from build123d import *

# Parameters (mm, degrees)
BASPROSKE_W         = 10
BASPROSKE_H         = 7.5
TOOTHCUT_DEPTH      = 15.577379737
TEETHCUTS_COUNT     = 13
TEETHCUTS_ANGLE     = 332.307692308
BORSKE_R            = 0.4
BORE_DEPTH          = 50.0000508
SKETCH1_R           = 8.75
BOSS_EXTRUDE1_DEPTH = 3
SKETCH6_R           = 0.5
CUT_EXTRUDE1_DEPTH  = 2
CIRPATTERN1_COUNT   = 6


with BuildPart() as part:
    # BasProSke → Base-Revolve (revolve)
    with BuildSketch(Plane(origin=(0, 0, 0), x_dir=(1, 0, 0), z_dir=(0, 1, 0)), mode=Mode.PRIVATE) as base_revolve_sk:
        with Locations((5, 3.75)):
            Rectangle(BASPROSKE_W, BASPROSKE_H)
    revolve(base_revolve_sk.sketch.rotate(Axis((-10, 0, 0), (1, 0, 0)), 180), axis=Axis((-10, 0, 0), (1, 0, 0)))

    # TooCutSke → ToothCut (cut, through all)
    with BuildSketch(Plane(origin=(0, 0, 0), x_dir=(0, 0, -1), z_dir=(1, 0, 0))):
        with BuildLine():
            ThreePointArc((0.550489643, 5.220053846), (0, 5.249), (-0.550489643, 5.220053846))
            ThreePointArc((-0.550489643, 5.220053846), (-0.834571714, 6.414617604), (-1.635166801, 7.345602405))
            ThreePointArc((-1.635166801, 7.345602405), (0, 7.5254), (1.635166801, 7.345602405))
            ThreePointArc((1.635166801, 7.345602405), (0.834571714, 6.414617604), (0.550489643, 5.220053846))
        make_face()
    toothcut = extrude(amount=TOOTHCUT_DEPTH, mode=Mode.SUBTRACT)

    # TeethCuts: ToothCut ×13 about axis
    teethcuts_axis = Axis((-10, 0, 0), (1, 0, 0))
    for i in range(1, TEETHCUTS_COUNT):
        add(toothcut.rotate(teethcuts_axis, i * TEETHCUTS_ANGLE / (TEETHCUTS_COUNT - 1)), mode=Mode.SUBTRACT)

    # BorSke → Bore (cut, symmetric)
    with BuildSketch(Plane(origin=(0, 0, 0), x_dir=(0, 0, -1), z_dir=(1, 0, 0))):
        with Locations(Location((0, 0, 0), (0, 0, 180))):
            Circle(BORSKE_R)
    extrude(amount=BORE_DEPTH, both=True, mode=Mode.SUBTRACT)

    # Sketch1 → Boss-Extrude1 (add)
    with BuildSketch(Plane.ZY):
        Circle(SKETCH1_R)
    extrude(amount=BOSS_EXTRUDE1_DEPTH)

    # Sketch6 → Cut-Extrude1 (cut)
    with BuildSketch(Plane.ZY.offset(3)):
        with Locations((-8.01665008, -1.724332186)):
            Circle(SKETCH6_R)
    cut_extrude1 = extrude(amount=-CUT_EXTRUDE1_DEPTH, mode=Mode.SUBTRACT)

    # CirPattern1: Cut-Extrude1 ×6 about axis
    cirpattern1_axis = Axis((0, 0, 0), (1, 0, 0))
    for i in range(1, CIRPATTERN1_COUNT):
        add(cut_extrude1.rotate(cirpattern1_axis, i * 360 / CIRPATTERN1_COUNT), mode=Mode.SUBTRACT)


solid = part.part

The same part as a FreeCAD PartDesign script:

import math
import FreeCAD as App
import Part
import Sketcher

V = App.Vector

doc = App.newDocument("Part")
body = doc.addObject("PartDesign::Body", "Body")

sketch1 = body.newObject("Sketcher::SketchObject", "Sketch")
sketch1.AttachmentSupport = (doc.getObject("XZ_Plane"), [""])
sketch1.MapMode = "FlatFace"
sketch1.addGeometry(Part.LineSegment(V(0, -8, 0), V(0, 0, 0)), False)
sketch1.addGeometry(Part.LineSegment(V(0, 0, 0), V(10, 0, 0)), False)
sketch1.addGeometry(Part.LineSegment(V(10, 0, 0), V(10, -8, 0)), False)
sketch1.addGeometry(Part.LineSegment(V(10, -8, 0), V(0, -8, 0)), False)
sketch1.addConstraint(Sketcher.Constraint("Coincident", 0, 2, 1, 1))
sketch1.addConstraint(Sketcher.Constraint("Coincident", 1, 2, 2, 1))
sketch1.addConstraint(Sketcher.Constraint("Coincident", 2, 2, 3, 1))
sketch1.addConstraint(Sketcher.Constraint("Coincident", 3, 2, 0, 1))
sketch1.addConstraint(Sketcher.Constraint("Vertical", 0))
sketch1.addConstraint(Sketcher.Constraint("Horizontal", 1))
sketch1.addConstraint(Sketcher.Constraint("Vertical", 2))
sketch1.addConstraint(Sketcher.Constraint("Horizontal", 3))
sketch1.addConstraint(Sketcher.Constraint("Coincident", 0, 2, -1, 1))
sketch1.addConstraint(Sketcher.Constraint("DistanceX", 1, 1, 1, 2, 10.0))
sketch1.addConstraint(Sketcher.Constraint("DistanceY", 0, 1, 0, 2, 7.5))
revolution = body.newObject("PartDesign::Revolution", "Revolution")
revolution.Profile = sketch1
revolution.ReferenceAxis = (sketch1, ["H_Axis"])
revolution.Angle = 360

sketch2 = body.newObject("Sketcher::SketchObject", "Sketch001")
sketch2.AttachmentSupport = (doc.getObject("YZ_Plane"), [""])
sketch2.MapMode = "FlatFace"
sketch2.addGeometry(Part.ArcOfCircle(Part.Circle(V(0, 0, 0), V(0, 0, 1), 5.2), math.radians(-6.02), math.radians(6.02)), False)
sketch2.addGeometry(Part.ArcOfCircle(Part.Circle(V(5.2, -3.2, 0), V(0, 0, 1), 2.6), math.radians(36), math.radians(90)), False)
sketch2.addGeometry(Part.ArcOfCircle(Part.Circle(V(0, 0, 0), V(0, 0, 1), 7.5), math.radians(-13), math.radians(13)), False)
sketch2.addGeometry(Part.ArcOfCircle(Part.Circle(V(5.2, 3.2, 0), V(0, 0, 1), 2.6), math.radians(-90), math.radians(-36)), False)
sketch2.addConstraint(Sketcher.Constraint("Coincident", 0, 1, 1, 2))
sketch2.addConstraint(Sketcher.Constraint("Coincident", 1, 1, 2, 1))
sketch2.addConstraint(Sketcher.Constraint("Coincident", 2, 2, 3, 2))
sketch2.addConstraint(Sketcher.Constraint("Coincident", 3, 1, 0, 2))
sketch2.addConstraint(Sketcher.Constraint("Coincident", 0, 3, -1, 1))
sketch2.addConstraint(Sketcher.Constraint("Coincident", 2, 3, -1, 1))
sketch2.addConstraint(Sketcher.Constraint("Equal", 1, 3))
sketch2.addConstraint(Sketcher.Constraint("Symmetric", 1, 3, 3, 3, -1))
sketch2.addConstraint(Sketcher.Constraint("Radius", 1, 2.6))
sketch2.addConstraint(Sketcher.Constraint("Radius", 0, 5.249))
sketch2.addConstraint(Sketcher.Constraint("Radius", 2, 7.5254))
sketch2.addConstraint(Sketcher.Constraint("DistanceX", -1, 1, 1, 3, 5.23281))
sketch2.addConstraint(Sketcher.Constraint("DistanceY", 1, 3, -1, 1, 3.150458))
pocket1 = body.newObject("PartDesign::Pocket", "Pocket")
pocket1.Profile = sketch2
pocket1.Type = "ThroughAll"
pocket1.Reversed = True
doc.recompute()

polarpattern = body.newObject("PartDesign::PolarPattern", "PolarPattern")
polarpattern.Originals = [pocket1]
polarpattern.Axis = (doc.getObject("X_Axis"), [""])
polarpattern.Angle = 360
polarpattern.Occurrences = 13
body.Tip = polarpattern

sketch3 = body.newObject("Sketcher::SketchObject", "Sketch002")
sketch3.AttachmentSupport = (doc.getObject("YZ_Plane"), [""])
sketch3.MapMode = "FlatFace"
sketch3.addGeometry(Part.Circle(V(0, 0, 0), V(0, 0, 1), 0.4), False)
sketch3.addConstraint(Sketcher.Constraint("Coincident", 0, 3, -1, 1))
sketch3.addConstraint(Sketcher.Constraint("Diameter", 0, 0.8))
pocket2 = body.newObject("PartDesign::Pocket", "Pocket001")
pocket2.Profile = sketch3
pocket2.Length = 100.000102
pocket2.Midplane = True

sketch4 = body.newObject("Sketcher::SketchObject", "Sketch003")
sketch4.AttachmentSupport = (doc.getObject("YZ_Plane"), [""])
sketch4.MapMode = "FlatFace"
sketch4.addGeometry(Part.Circle(V(0, 0, 0), V(0, 0, 1), 9), False)
sketch4.addConstraint(Sketcher.Constraint("Coincident", 0, 3, -1, 1))
sketch4.addConstraint(Sketcher.Constraint("Diameter", 0, 17.5))
pad1 = body.newObject("PartDesign::Pad", "Pad")
pad1.Profile = sketch4
pad1.Length = 3
pad1.Reversed = True

sketch5 = body.newObject("Sketcher::SketchObject", "Sketch004")
sketch5.AttachmentSupport = (doc.getObject("YZ_Plane"), [""])
sketch5.MapMode = "FlatFace"
sketch5.AttachmentOffset = App.Placement(V(0, 0, -3), App.Rotation())
sketch5.addGeometry(Part.Circle(V(-1.7, -8, 0), V(0, 0, 1), 0.5), False)
sketch5.addConstraint(Sketcher.Constraint("Diameter", 0, 1.0))
sketch5.addConstraint(Sketcher.Constraint("DistanceY", 0, 3, -1, 1, 8.01665))
sketch5.addConstraint(Sketcher.Constraint("DistanceX", 0, 3, -1, 1, 1.724332))
pocket3 = body.newObject("PartDesign::Pocket", "Pocket002")
pocket3.Profile = sketch5
pocket3.Length = 2
pocket3.Reversed = True
doc.recompute()

polarpattern2 = body.newObject("PartDesign::PolarPattern", "PolarPattern001")
polarpattern2.Originals = [pocket3]
polarpattern2.Axis = (doc.getObject("X_Axis"), [""])
polarpattern2.Angle = 360
polarpattern2.Occurrences = 6
body.Tip = polarpattern2

doc.recompute()
